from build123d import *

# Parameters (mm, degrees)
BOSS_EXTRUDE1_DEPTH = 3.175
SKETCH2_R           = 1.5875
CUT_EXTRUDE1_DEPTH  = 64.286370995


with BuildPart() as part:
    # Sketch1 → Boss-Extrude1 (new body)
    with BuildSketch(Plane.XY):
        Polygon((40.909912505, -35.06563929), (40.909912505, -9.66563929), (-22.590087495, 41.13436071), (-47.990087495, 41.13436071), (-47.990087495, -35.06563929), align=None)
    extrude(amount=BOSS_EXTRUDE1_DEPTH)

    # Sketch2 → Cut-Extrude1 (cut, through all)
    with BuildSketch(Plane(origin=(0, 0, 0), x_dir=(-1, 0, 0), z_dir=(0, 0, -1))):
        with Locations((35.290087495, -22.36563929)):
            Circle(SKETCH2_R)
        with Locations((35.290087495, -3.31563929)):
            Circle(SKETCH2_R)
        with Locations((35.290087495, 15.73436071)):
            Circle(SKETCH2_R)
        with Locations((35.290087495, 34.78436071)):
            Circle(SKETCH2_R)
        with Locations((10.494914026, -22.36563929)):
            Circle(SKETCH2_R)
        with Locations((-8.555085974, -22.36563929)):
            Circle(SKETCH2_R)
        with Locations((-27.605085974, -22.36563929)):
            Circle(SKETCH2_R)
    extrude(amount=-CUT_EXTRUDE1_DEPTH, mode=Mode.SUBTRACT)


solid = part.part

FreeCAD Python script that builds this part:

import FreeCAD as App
import Part
import Sketcher
Q = App.Units.Quantity

doc = App.newDocument("Part")
body = doc.addObject("PartDesign::Body", "Body")

sketch1 = doc.addObject("Sketcher::SketchObject", "Sketch")
body.addObject(sketch1)
sketch1.AttachmentSupport = (doc.XY_Plane, [""])
sketch1.MapMode = "FlatFace"
sketch1.addGeometry([
    Part.LineSegment(App.Vector(41, -35, 0), App.Vector(41, -10, 0)),
    Part.LineSegment(App.Vector(41, -10, 0), App.Vector(-23, 41, 0)),
    Part.LineSegment(App.Vector(-23, 41, 0), App.Vector(-48, 41, 0)),
    Part.LineSegment(App.Vector(-48, 41, 0), App.Vector(-48, -35, 0)),
    Part.LineSegment(App.Vector(-48, -35, 0), App.Vector(41, -35, 0)),
], False)
sketch1.addConstraint([
    Sketcher.Constraint("Coincident", 0, 2, 1, 1),
    Sketcher.Constraint("Coincident", 1, 2, 2, 1),
    Sketcher.Constraint("Coincident", 2, 2, 3, 1),
    Sketcher.Constraint("Coincident", 3, 2, 4, 1),
    Sketcher.Constraint("Coincident", 4, 2, 0, 1),
    Sketcher.Constraint("Vertical", 0),
    Sketcher.Constraint("Horizontal", 2),
    Sketcher.Constraint("Vertical", 3),
    Sketcher.Constraint("Horizontal", 4),
    Sketcher.Constraint("Equal", 2, 0),
    Sketcher.Constraint("DistanceX", 2, 2, 2, 1, Q("1 in")),
    Sketcher.Constraint("DistanceY", 3, 2, 3, 1, Q("3 in")),
    Sketcher.Constraint("DistanceX", 4, 1, 4, 2, Q("3.5 in")),
    Sketcher.Constraint("DistanceY", 0, 2, -1, 1, 9.665639),
    Sketcher.Constraint("DistanceX", -1, 1, 0, 2, 40.909913),
])
pad1 = doc.addObject("PartDesign::Pad", "Pad")
body.addObject(pad1)
pad1.Profile = sketch1
pad1.Length = Q("0.125 in")

sketch2 = doc.addObject("Sketcher::SketchObject", "Sketch001")
body.addObject(sketch2)
sketch2.AttachmentSupport = (doc.XY_Plane, [""])
sketch2.MapMode = "FlatFace"
sketch2.addGeometry([
    Part.Circle(App.Vector(-35.3, -22.4, 0), App.Vector(0, 0, 1), 1.6),
    Part.Circle(App.Vector(-35.3, -3.3, 0), App.Vector(0, 0, 1), 1.6),
    Part.Circle(App.Vector(-35.3, 15.7, 0), App.Vector(0, 0, 1), 1.6),
    Part.Circle(App.Vector(-35.3, 34.8, 0), App.Vector(0, 0, 1), 1.6),
    Part.Circle(App.Vector(-10.5, -22.4, 0), App.Vector(0, 0, 1), 1.6),
    Part.Circle(App.Vector(8.6, -22.4, 0), App.Vector(0, 0, 1), 1.6),
    Part.Circle(App.Vector(27.6, -22.4, 0), App.Vector(0, 0, 1), 1.6),
], False)
sketch2.addConstraint([
    Sketcher.Constraint("Equal", 0, 1),
    Sketcher.Constraint("Equal", 1, 2),
    Sketcher.Constraint("Equal", 2, 3),
    Sketcher.Constraint("Equal", 3, 4),
    Sketcher.Constraint("Equal", 4, 5),
    Sketcher.Constraint("Equal", 5, 6),
    Sketcher.Constraint("Horizontal", 0, 3, 4, 3),
    Sketcher.Constraint("Horizontal", 4, 3, 5, 3),
    Sketcher.Constraint("Horizontal", 5, 3, 6, 3),
    Sketcher.Constraint("Vertical", 0, 3, 1, 3),
    Sketcher.Constraint("Vertical", 1, 3, 2, 3),
    Sketcher.Constraint("Vertical", 2, 3, 3, 3),
    Sketcher.Constraint("Diameter", 0, Q("0.125 in")),
    Sketcher.Constraint("DistanceY", 0, 3, 2, 3, Q("1.5 in")),
    Sketcher.Constraint("DistanceY", 1, 3, 3, 3, Q("1.5 in")),
    Sketcher.Constraint("DistanceX", 4, 3, 6, 3, Q("1.5 in")),
    Sketcher.Constraint("DistanceY", 0, 3, 1, 3, Q("0.75 in")),
    Sketcher.Constraint("DistanceX", 4, 3, 5, 3, Q("0.75 in")),
    Sketcher.Constraint("DistanceY", 0, 3, -1, 1, 22.365639),
    Sketcher.Constraint("DistanceX", 0, 3, -1, 1, 35.290087),
    Sketcher.Constraint("DistanceX", 4, 3, -1, 1, 10.494914),
])
pocket1 = doc.addObject("PartDesign::Pocket", "Pocket")
body.addObject(pocket1)
pocket1.Profile = sketch2
pocket1.Type = "ThroughAll"
pocket1.Reversed = True

doc.recompute()
